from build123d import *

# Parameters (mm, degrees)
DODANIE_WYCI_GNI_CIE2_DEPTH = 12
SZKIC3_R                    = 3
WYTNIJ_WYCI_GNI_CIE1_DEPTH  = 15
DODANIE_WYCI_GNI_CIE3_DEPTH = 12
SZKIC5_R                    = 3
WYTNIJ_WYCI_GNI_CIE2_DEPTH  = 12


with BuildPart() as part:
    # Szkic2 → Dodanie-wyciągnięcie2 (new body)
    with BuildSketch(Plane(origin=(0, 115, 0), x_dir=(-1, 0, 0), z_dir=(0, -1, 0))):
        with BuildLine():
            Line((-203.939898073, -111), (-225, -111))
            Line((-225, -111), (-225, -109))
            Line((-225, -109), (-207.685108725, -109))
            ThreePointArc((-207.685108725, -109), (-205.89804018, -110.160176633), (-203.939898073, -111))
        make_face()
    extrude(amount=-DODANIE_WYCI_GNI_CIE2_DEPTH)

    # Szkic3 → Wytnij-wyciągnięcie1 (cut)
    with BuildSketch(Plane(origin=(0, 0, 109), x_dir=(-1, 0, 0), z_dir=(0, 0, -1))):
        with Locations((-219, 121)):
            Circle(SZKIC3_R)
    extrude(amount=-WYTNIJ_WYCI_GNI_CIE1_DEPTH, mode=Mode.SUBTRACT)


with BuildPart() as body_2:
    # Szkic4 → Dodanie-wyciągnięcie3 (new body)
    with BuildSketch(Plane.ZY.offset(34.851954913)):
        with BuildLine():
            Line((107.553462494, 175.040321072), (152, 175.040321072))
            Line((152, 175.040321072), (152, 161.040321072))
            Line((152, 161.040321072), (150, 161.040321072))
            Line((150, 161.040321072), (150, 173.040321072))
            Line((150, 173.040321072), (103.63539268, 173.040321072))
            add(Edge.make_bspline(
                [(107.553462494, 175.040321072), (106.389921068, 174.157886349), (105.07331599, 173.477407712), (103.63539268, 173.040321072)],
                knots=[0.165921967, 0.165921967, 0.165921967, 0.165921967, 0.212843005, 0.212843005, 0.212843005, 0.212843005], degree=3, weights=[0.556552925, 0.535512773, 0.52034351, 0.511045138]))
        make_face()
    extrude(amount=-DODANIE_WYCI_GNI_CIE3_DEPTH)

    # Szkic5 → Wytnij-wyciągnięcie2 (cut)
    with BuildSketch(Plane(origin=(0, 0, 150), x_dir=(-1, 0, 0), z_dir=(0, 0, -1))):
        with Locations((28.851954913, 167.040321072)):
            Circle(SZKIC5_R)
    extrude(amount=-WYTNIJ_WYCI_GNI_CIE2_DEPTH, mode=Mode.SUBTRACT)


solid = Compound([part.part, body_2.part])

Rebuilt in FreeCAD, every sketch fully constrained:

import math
import FreeCAD as App
import Part
import Sketcher
Q = App.Units.Quantity

doc = App.newDocument("Part")
body = doc.addObject("PartDesign::Body", "Body")

# Sketch on XZ plane
sketch1 = body.newObject("Sketcher::SketchObject", "Sketch")
sketch1.AttachmentSupport = (doc.getObject("XZ_Plane"), [""])
sketch1.MapMode = "FlatFace"
sketch1.AttachmentOffset = App.Placement(App.Vector(0, 0, -115), App.Rotation())
sketch1.addGeometry(Part.LineSegment(App.Vector(225, 111, 0), App.Vector(203.9, 111, 0)), False)
sketch1.addGeometry(Part.ArcOfCircle(Part.Circle(App.Vector(200, 99.1, 0), App.Vector(0, 0, 1), 12.5), math.radians(52.12), math.radians(71.68)), False)
sketch1.addGeometry(Part.LineSegment(App.Vector(207.7, 109, 0), App.Vector(225, 109, 0)), False)
sketch1.addGeometry(Part.LineSegment(App.Vector(225, 109, 0), App.Vector(225, 111, 0)), False)
sketch1.addConstraint(Sketcher.Constraint("Coincident", 0, 2, 1, 2))
sketch1.addConstraint(Sketcher.Constraint("Coincident", 1, 1, 2, 1))
sketch1.addConstraint(Sketcher.Constraint("Coincident", 2, 2, 3, 1))
sketch1.addConstraint(Sketcher.Constraint("Coincident", 3, 2, 0, 1))
sketch1.addConstraint(Sketcher.Constraint("Horizontal", 0))
sketch1.addConstraint(Sketcher.Constraint("Horizontal", 2))
sketch1.addConstraint(Sketcher.Constraint("Vertical", 3))
sketch1.addConstraint(Sketcher.Constraint("Radius", 1, Q("12.5 mm")))
sketch1.addConstraint(Sketcher.Constraint("DistanceY", 3, 1, 3, 2, Q("2 mm")))
sketch1.addConstraint(Sketcher.Constraint("DistanceY", -1, 1, 0, 2, Q("111 mm")))
sketch1.addConstraint(Sketcher.Constraint("DistanceX", -1, 1, 2, 2, Q("225 mm")))
sketch1.addConstraint(Sketcher.Constraint("DistanceX", 0, 2, 0, 1, Q("21.060102 mm")))
sketch1.addConstraint(Sketcher.Constraint("DistanceX", 2, 1, 2, 2, Q("17.314891 mm")))
pad1 = body.newObject("PartDesign::Pad", "Pad")
pad1.Profile = sketch1
pad1.Length = 12
pad1.Reversed = True

# Sketch on XY plane
sketch2 = body.newObject("Sketcher::SketchObject", "Sketch001")
sketch2.AttachmentSupport = (doc.getObject("XY_Plane"), [""])
sketch2.MapMode = "FlatFace"
sketch2.AttachmentOffset = App.Placement(App.Vector(0, 0, 109), App.Rotation())
sketch2.addGeometry(Part.Circle(App.Vector(219, 121, 0), App.Vector(0, 0, 1), 3), False)
sketch2.addConstraint(Sketcher.Constraint("Diameter", 0, Q("6 mm")))
sketch2.addConstraint(Sketcher.Constraint("DistanceX", -1, 1, 0, 3, Q("219 mm")))
sketch2.addConstraint(Sketcher.Constraint("DistanceY", -1, 1, 0, 3, Q("121 mm")))
pocket1 = body.newObject("PartDesign::Pocket", "Pocket")
pocket1.Profile = sketch2
pocket1.Length = 15
pocket1.Reversed = True
body2 = doc.addObject("PartDesign::Body", "Body001")

# Sketch on YZ plane
sketch3 = body2.newObject("Sketcher::SketchObject", "Sketch002")
sketch3.AttachmentSupport = (doc.getObject("YZ_Plane001"), [""])
sketch3.MapMode = "FlatFace"
sketch3.AttachmentOffset = App.Placement(App.Vector(0, 0, -34.851955), App.Rotation())
sketch3.addGeometry(Part.LineSegment(App.Vector(175.040321, 152, 0), App.Vector(175.040321, 107.553462, 0)), False)
sketch3.addGeometry(Part.BSplineCurve([App.Vector(175.040321, 107.553462, 0), App.Vector(174.157886, 106.389921, 0), App.Vector(173.477408, 105.073316, 0), App.Vector(173.040321, 103.635393, 0)], [4, 4], [0.165921967, 0.212843005], False, 3, [0.556552925, 0.535512773, 0.52034351, 0.511045138], False), False)
sketch3.addGeometry(Part.LineSegment(App.Vector(173.040321, 103.635393, 0), App.Vector(173.040321, 150, 0)), False)
sketch3.addGeometry(Part.LineSegment(App.Vector(173.040321, 150, 0), App.Vector(161.040321, 150, 0)), False)
sketch3.addGeometry(Part.LineSegment(App.Vector(161.040321, 150, 0), App.Vector(161.040321, 152, 0)), False)
sketch3.addGeometry(Part.LineSegment(App.Vector(161.040321, 152, 0), App.Vector(175.040321, 152, 0)), False)
sketch3.addConstraint(Sketcher.Constraint("Block", 1))
sketch3.addConstraint(Sketcher.Constraint("Coincident", 0, 2, 1, 1))
sketch3.addConstraint(Sketcher.Constraint("Coincident", 1, 2, 2, 1))
sketch3.addConstraint(Sketcher.Constraint("Coincident", 2, 2, 3, 1))
sketch3.addConstraint(Sketcher.Constraint("Coincident", 3, 2, 4, 1))
sketch3.addConstraint(Sketcher.Constraint("Coincident", 4, 2, 5, 1))
sketch3.addConstraint(Sketcher.Constraint("Coincident", 5, 2, 0, 1))
sketch3.addConstraint(Sketcher.Constraint("Vertical", 0))
sketch3.addConstraint(Sketcher.Constraint("Vertical", 2))
sketch3.addConstraint(Sketcher.Constraint("Horizontal", 3))
sketch3.addConstraint(Sketcher.Constraint("Vertical", 4))
sketch3.addConstraint(Sketcher.Constraint("Horizontal", 5))
sketch3.addConstraint(Sketcher.Constraint("DistanceX", 3, 2, 3, 1, Q("12 mm")))
sketch3.addConstraint(Sketcher.Constraint("DistanceY", 4, 1, 4, 2, Q("2 mm")))
sketch3.addConstraint(Sketcher.Constraint("DistanceY", -1, 1, 2, 2, Q("150 mm")))
pad2 = body2.newObject("PartDesign::Pad", "Pad001")
pad2.Profile = sketch3
pad2.Length = 12

# Sketch on XY plane
sketch4 = body2.newObject("Sketcher::SketchObject", "Sketch003")
sketch4.AttachmentSupport = (doc.getObject("XY_Plane001"), [""])
sketch4.MapMode = "FlatFace"
sketch4.AttachmentOffset = App.Placement(App.Vector(0, 0, 150), App.Rotation())
sketch4.addGeometry(Part.Circle(App.Vector(-28.9, 167, 0), App.Vector(0, 0, 1), 3), False)
sketch4.addConstraint(Sketcher.Constraint("Diameter", 0, Q("6 mm")))
sketch4.addConstraint(Sketcher.Constraint("DistanceY", -1, 1, 0, 3, Q("167.040321 mm")))
sketch4.addConstraint(Sketcher.Constraint("DistanceX", 0, 3, -1, 1, Q("28.851955 mm")))
pocket2 = body2.newObject("PartDesign::Pocket", "Pocket001")
pocket2.Profile = sketch4
pocket2.Length = 12
pocket2.Reversed = True

doc.recompute()
